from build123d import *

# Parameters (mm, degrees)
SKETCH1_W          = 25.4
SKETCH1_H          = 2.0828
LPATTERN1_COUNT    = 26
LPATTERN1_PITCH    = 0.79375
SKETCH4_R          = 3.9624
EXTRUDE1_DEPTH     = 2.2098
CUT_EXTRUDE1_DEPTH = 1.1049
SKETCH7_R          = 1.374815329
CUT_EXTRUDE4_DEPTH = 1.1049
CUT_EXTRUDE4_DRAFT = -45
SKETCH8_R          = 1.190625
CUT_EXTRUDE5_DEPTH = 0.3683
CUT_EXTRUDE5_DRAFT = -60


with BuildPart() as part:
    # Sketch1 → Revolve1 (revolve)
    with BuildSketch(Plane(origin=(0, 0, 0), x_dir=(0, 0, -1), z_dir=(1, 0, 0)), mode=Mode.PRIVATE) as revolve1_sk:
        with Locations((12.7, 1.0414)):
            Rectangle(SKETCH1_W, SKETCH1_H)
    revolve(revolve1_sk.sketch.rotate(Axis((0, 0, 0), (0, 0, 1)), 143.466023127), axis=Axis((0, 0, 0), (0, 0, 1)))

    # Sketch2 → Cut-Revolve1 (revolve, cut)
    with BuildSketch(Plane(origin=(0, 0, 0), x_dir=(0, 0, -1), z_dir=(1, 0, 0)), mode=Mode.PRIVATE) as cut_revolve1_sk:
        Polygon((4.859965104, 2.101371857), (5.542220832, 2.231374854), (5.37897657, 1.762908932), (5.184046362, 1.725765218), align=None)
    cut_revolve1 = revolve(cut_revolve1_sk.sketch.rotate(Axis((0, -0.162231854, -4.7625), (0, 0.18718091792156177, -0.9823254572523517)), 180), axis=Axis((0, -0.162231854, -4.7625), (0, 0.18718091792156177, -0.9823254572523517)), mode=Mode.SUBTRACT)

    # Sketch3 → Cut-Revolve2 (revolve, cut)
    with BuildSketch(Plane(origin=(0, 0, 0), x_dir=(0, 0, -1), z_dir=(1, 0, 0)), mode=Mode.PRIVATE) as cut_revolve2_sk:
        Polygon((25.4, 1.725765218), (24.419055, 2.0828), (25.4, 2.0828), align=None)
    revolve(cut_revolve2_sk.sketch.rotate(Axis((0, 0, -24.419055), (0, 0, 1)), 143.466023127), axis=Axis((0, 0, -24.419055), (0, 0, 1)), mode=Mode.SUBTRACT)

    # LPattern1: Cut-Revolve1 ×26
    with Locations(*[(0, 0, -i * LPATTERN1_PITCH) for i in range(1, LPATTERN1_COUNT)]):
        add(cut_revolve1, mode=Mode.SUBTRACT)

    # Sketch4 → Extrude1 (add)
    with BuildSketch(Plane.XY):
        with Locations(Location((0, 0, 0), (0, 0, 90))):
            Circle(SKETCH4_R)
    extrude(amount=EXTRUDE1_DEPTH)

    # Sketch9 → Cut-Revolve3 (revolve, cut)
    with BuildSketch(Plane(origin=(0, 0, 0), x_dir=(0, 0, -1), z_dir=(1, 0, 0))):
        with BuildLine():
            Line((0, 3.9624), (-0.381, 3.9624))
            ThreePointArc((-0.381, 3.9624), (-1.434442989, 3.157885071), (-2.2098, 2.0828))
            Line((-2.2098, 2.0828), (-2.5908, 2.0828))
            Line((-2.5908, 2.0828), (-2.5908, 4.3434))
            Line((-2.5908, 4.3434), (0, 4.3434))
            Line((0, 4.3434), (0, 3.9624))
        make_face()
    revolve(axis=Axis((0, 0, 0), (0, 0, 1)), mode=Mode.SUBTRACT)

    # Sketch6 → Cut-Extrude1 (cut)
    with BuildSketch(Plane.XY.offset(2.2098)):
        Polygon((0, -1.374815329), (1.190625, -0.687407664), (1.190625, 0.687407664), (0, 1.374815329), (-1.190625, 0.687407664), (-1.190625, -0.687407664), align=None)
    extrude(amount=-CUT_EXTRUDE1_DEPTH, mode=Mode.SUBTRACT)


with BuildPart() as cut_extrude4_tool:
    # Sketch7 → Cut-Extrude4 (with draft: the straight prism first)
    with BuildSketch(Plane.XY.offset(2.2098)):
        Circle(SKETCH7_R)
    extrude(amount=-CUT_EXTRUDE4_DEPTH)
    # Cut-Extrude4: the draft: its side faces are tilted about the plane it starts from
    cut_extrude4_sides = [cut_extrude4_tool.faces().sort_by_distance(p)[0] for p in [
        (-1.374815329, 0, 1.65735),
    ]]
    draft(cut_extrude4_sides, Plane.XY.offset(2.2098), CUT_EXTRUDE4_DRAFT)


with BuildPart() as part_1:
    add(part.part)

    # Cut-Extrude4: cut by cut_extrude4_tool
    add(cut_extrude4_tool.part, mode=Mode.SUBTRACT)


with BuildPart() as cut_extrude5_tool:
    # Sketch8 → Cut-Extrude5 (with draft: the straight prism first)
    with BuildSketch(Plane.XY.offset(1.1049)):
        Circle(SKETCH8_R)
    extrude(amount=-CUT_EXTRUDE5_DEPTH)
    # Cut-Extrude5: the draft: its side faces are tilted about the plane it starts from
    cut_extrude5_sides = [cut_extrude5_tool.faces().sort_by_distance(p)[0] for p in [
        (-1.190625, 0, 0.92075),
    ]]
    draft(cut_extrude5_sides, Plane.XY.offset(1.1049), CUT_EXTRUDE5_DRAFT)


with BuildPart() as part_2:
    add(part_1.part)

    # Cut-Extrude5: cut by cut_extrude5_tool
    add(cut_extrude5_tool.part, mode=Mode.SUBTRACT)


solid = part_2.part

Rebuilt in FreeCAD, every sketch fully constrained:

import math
import FreeCAD as App
import Part
import Sketcher
from FreeCAD import Vector
Q = App.Units.Quantity


def faces_at(feature, points):
    """Names of the faces that lie closest to the given points."""
    faces = feature.Shape.Faces
    near = lambda p: min(range(len(faces)), key=lambda i: faces[i].distToShape(Part.Vertex(*p))[0])
    return sorted({f"Face{near(p) + 1}" for p in points})


def add_polygon(sketch, points):
    """Adds a closed chain of lines whose ends are joined by coincident constraints."""
    first, n = sketch.GeometryCount, len(points)
    for a, b in zip(points, points[1:] + points[:1]):
        sketch.addGeometry(Part.LineSegment(App.Vector(*a, 0), App.Vector(*b, 0)), False)
    for i in range(n):
        sketch.addConstraint(Sketcher.Constraint("Coincident", first + i, 2, first + (i + 1) % n, 1))

doc = App.newDocument("Part")
body = doc.addObject("PartDesign::Body", "Body")

# Sketch on YZ plane
sketch1 = body.newObject("Sketcher::SketchObject", "Sketch")
sketch1.AttachmentSupport = (doc.getObject("YZ_Plane"), [""])
sketch1.MapMode = "FlatFace"
add_polygon(sketch1, [(2.1, 0), (0, 0), (0, -25.4), (2.1, -25.4)])  # lines 0-3
sketch1.addConstraint(Sketcher.Constraint("Horizontal", 0))
sketch1.addConstraint(Sketcher.Constraint("Vertical", 1))
sketch1.addConstraint(Sketcher.Constraint("Horizontal", 2))
sketch1.addConstraint(Sketcher.Constraint("Vertical", 3))
sketch1.addConstraint(Sketcher.Constraint("Coincident", 0, 2, -1, 1))
sketch1.addConstraint(Sketcher.Constraint("DistanceY", 1, 2, 1, 1, Q("1 in")))
sketch1.addConstraint(Sketcher.Constraint("DistanceX", 0, 2, 0, 1, Q("0.082 in")))
revolution = body.newObject("PartDesign::Revolution", "Revolution")
revolution.Profile = sketch1
revolution.ReferenceAxis = (sketch1, ["V_Axis"])
revolution.Angle = 360

# Sketch on YZ plane
sketch2 = body.newObject("Sketcher::SketchObject", "Sketch001")
sketch2.AttachmentSupport = (doc.getObject("YZ_Plane"), [""])
sketch2.MapMode = "FlatFace"
add_polygon(sketch2, [(2.23, -5.54), (2.1, -4.86), (1.73, -5.18), (1.76, -5.38)])  # lines 0-3
sketch2.addGeometry(Part.LineSegment(Vector(-0.07, -5.27, 0), Vector(0.07, -5.96, 0)), True)  # axis
sketch2.addConstraint(Sketcher.Constraint("Parallel", 0, 2))
sketch2.addConstraint(Sketcher.Constraint("Parallel", 2, 4))
sketch2.addConstraint(Sketcher.Constraint("Equal", 1, 3))
sketch2.addConstraint(Sketcher.Constraint("Equal", 0, 4))
sketch2.addConstraint(Sketcher.Constraint("DistanceX", 4, 1, -1, 1, Q("0.065001 mm")))
sketch2.addConstraint(Sketcher.Constraint("DistanceX", -1, 1, 4, 2, Q("0.065001 mm")))
sketch2.addConstraint(Sketcher.Constraint("DistanceY", 4, 1, 0, 2, Q("0.4128 mm")))
sketch2.addConstraint(Sketcher.Constraint("Distance", 0, Q("0.694531 mm")))
sketch2.addConstraint(Sketcher.Constraint("DistanceX", -1, 1, 0, 2, Q("2.101372 mm")))
sketch2.addConstraint(Sketcher.Constraint("DistanceX", -1, 1, 2, 2, Q("1.762909 mm")))
sketch2.addConstraint(Sketcher.Constraint("DistanceY", 3, 2, -1, 1, Q("5.542221 mm")))
sketch2.addConstraint(Sketcher.Constraint("DistanceY", 1, 2, 0, 2, Q("0.324081 mm")))
groove = body.newObject("PartDesign::Groove", "Groove")
groove.Profile = sketch2
groove.ReferenceAxis = (sketch2, ["Axis0"])
groove.Angle = 360

# Sketch on YZ plane
sketch3 = body.newObject("Sketcher::SketchObject", "Sketch002")
sketch3.AttachmentSupport = (doc.getObject("YZ_Plane"), [""])
sketch3.MapMode = "FlatFace"
add_polygon(sketch3, [(2.08, -24.42), (1.73, -25.4), (2.08, -25.4)])  # lines 0-2
sketch3.addConstraint(Sketcher.Constraint("Horizontal", 1))
sketch3.addConstraint(Sketcher.Constraint("Vertical", 2))
sketch3.addConstraint(Sketcher.Constraint("DistanceY", 0, 2, -1, 1, Q("1 in")))
sketch3.addConstraint(Sketcher.Constraint("Angle", 0, Q("-110 deg")))
sketch3.addConstraint(Sketcher.Constraint("DistanceX", -1, 1, 1, 2, Q("0.082 in")))
sketch3.addConstraint(Sketcher.Constraint("Distance", 0, Q("1.0439 mm")))
groove2 = body.newObject("PartDesign::Groove", "Groove001")
groove2.Profile = sketch3
groove2.ReferenceAxis = (sketch3, ["V_Axis"])
groove2.Angle = 360
doc.recompute()

linearpattern = body.newObject("PartDesign::LinearPattern", "LinearPattern")
linearpattern.Originals = [groove]
linearpattern.Direction = (doc.getObject("Z_Axis"), [""])
linearpattern.Mode = "offset"
linearpattern.Offset = Q("0.03125 in")
linearpattern.Occurrences = 26
linearpattern.Reversed = True
body.Tip = linearpattern

# Sketch on XY plane
sketch4 = body.newObject("Sketcher::SketchObject", "Sketch003")
sketch4.AttachmentSupport = (doc.getObject("XY_Plane"), [""])
sketch4.MapMode = "FlatFace"
sketch4.addGeometry(Part.Circle(Vector(0, 0, 0), Vector(0, 0, 1), 4), False)
sketch4.addConstraint(Sketcher.Constraint("Coincident", 0, 3, -1, 1))
sketch4.addConstraint(Sketcher.Constraint("Diameter", 0, Q("0.312 in")))
pad1 = body.newObject("PartDesign::Pad", "Pad")
pad1.Profile = sketch4
pad1.Length = Q("0.087 in")

# Sketch on YZ plane
sketch5 = body.newObject("Sketcher::SketchObject", "Sketch004")
sketch5.AttachmentSupport = (doc.getObject("YZ_Plane"), [""])
sketch5.MapMode = "FlatFace"
sketch5.addGeometry(Part.LineSegment(Vector(3.96, 0.38, 0), Vector(3.96, 0, 0)), False)
sketch5.addGeometry(Part.LineSegment(Vector(3.96, 0, 0), Vector(4.34, 0, 0)), False)
sketch5.addGeometry(Part.LineSegment(Vector(4.34, 0, 0), Vector(4.34, 2.59, 0)), False)
sketch5.addGeometry(Part.LineSegment(Vector(4.34, 2.59, 0), Vector(2.08, 2.59, 0)), False)
sketch5.addGeometry(Part.LineSegment(Vector(2.08, 2.59, 0), Vector(2.08, 2.21, 0)), False)
sketch5.addGeometry(Part.ArcOfCircle(Part.Circle(Vector(0, -1.81, 0), Vector(0, 0, 1), 4.53), math.radians(29), math.radians(63)), False)
sketch5.addConstraint(Sketcher.Constraint("Coincident", 0, 2, 1, 1))
sketch5.addConstraint(Sketcher.Constraint("Coincident", 1, 2, 2, 1))
sketch5.addConstraint(Sketcher.Constraint("Coincident", 2, 2, 3, 1))
sketch5.addConstraint(Sketcher.Constraint("Coincident", 3, 2, 4, 1))
sketch5.addConstraint(Sketcher.Constraint("Coincident", 4, 2, 5, 2))
sketch5.addConstraint(Sketcher.Constraint("Coincident", 5, 1, 0, 1))
sketch5.addConstraint(Sketcher.Constraint("Vertical", 0))
sketch5.addConstraint(Sketcher.Constraint("Horizontal", 1))
sketch5.addConstraint(Sketcher.Constraint("Vertical", 2))
sketch5.addConstraint(Sketcher.Constraint("Horizontal", 3))
sketch5.addConstraint(Sketcher.Constraint("Vertical", 4))
sketch5.addConstraint(Sketcher.Constraint("PointOnObject", 5, 3, -2))
sketch5.addConstraint(Sketcher.Constraint("PointOnObject", 0, 2, -1))
sketch5.addConstraint(Sketcher.Constraint("Equal", 1, 0))
sketch5.addConstraint(Sketcher.Constraint("Equal", 0, 4))
sketch5.addConstraint(Sketcher.Constraint("DistanceX", 1, 1, 1, 2, Q("0.015 in")))
sketch5.addConstraint(Sketcher.Constraint("DistanceX", 3, 2, 3, 1, Q("0.089 in")))
sketch5.addConstraint(Sketcher.Constraint("DistanceY", 2, 1, 2, 2, Q("0.102 in")))
sketch5.addConstraint(Sketcher.Constraint("DistanceX", -1, 1, 0, 2, Q("0.156 in")))
groove3 = body.newObject("PartDesign::Groove", "Groove002")
groove3.Profile = sketch5
groove3.ReferenceAxis = (sketch5, ["V_Axis"])
groove3.Angle = 360

# Sketch on XY plane
sketch6 = body.newObject("Sketcher::SketchObject", "Sketch005")
sketch6.AttachmentSupport = (doc.getObject("XY_Plane"), [""])
sketch6.MapMode = "FlatFace"
sketch6.AttachmentOffset = App.Placement(Vector(0, 0, 0.087 * 25.4), App.Rotation())
add_polygon(sketch6, [(0, -1.4), (1.2, -0.7), (1.2, 0.7), (0, 1.4), (-1.2, 0.7), (-1.2, -0.7)])  # lines 0-5
sketch6.addConstraint(Sketcher.Constraint("Vertical", 1))
sketch6.addConstraint(Sketcher.Constraint("Vertical", 4))
sketch6.addConstraint(Sketcher.Constraint("Symmetric", 0, 2, 3, 2, -1, 1))
sketch6.addConstraint(Sketcher.Constraint("Symmetric", 2, 2, 5, 2, -1, 1))
sketch6.addConstraint(Sketcher.Constraint("PointOnObject", 2, 2, -2))
sketch6.addConstraint(Sketcher.Constraint("Parallel", 2, 5))
sketch6.addConstraint(Sketcher.Constraint("Horizontal", 1, 2, 3, 2))
sketch6.addConstraint(Sketcher.Constraint("Angle", 0, Q("30 deg")))
sketch6.addConstraint(Sketcher.Constraint("DistanceX", -1, 1, 0, 2, Q("0.046875 in")))
sketch6.addConstraint(Sketcher.Constraint("DistanceY", 1, 1, 1, 2, Q("1.374815 mm")))
pocket1 = body.newObject("PartDesign::Pocket", "Pocket")
pocket1.Profile = sketch6
pocket1.Length = Q("0.0435 in")
body2 = doc.addObject("PartDesign::Body", "Body001")

# Sketch on XY plane
sketch7 = body2.newObject("Sketcher::SketchObject", "Sketch006")
sketch7.AttachmentSupport = (doc.getObject("XY_Plane001"), [""])
sketch7.MapMode = "FlatFace"
sketch7.AttachmentOffset = App.Placement(Vector(0, 0, 0.087 * 25.4), App.Rotation())
sketch7.addGeometry(Part.Circle(Vector(0, 0, 0), Vector(0, 0, 1), 1.4), False)
sketch7.addConstraint(Sketcher.Constraint("Coincident", 0, 3, -1, 1))
sketch7.addConstraint(Sketcher.Constraint("Diameter", 0, Q("2.749631 mm")))
pad2 = body2.newObject("PartDesign::Pad", "Pad001")
pad2.Profile = sketch7
pad2.Length = Q("0.0435 in")
pad2.Reversed = True
doc.recompute()

datumplane = body2.newObject("PartDesign::Plane", "DatumPlane")
datumplane.AttachmentSupport = (doc.getObject("XY_Plane001"), [""])
datumplane.MapMode = "FlatFace"
datumplane.AttachmentOffset = App.Placement(Vector(0, 0, 0.087 * 25.4), App.Rotation())
draft = body2.newObject("PartDesign::Draft", "Draft")
draft.Base = (pad2, faces_at(pad2, [(-1.375, 0, 1.657)]))
draft.NeutralPlane = (datumplane, [""])
draft.Angle = 45
draft.Reversed = True
doc.recompute()

boolean = body.newObject("PartDesign::Boolean", "Boolean")
boolean.Type = "Cut"
boolean.addObjects([body2])
body3 = doc.addObject("PartDesign::Body", "Body002")

# Sketch on XY plane
sketch8 = body3.newObject("Sketcher::SketchObject", "Sketch007")
sketch8.AttachmentSupport = (doc.getObject("XY_Plane002"), [""])
sketch8.MapMode = "FlatFace"
sketch8.AttachmentOffset = App.Placement(Vector(0, 0, 0.0435 * 25.4), App.Rotation())
sketch8.addGeometry(Part.Circle(Vector(0, 0, 0), Vector(0, 0, 1), 1.2), False)
sketch8.addConstraint(Sketcher.Constraint("Coincident", 0, 3, -1, 1))
sketch8.addConstraint(Sketcher.Constraint("Diameter", 0, Q("0.09375 in")))
pad3 = body3.newObject("PartDesign::Pad", "Pad002")
pad3.Profile = sketch8
pad3.Length = Q("0.0145 in")
pad3.Reversed = True
doc.recompute()

datumplane2 = body3.newObject("PartDesign::Plane", "DatumPlane001")
datumplane2.AttachmentSupport = (doc.getObject("XY_Plane002"), [""])
datumplane2.MapMode = "FlatFace"
datumplane2.AttachmentOffset = App.Placement(Vector(0, 0, 0.0435 * 25.4), App.Rotation())
draft2 = body3.newObject("PartDesign::Draft", "Draft001")
draft2.Base = (pad3, faces_at(pad3, [(-1.191, 0, 0.921)]))
draft2.NeutralPlane = (datumplane2, [""])
draft2.Angle = 60
draft2.Reversed = True
doc.recompute()

boolean2 = body.newObject("PartDesign::Boolean", "Boolean001")
boolean2.Type = "Cut"
boolean2.addObjects([body3])

doc.recompute()
